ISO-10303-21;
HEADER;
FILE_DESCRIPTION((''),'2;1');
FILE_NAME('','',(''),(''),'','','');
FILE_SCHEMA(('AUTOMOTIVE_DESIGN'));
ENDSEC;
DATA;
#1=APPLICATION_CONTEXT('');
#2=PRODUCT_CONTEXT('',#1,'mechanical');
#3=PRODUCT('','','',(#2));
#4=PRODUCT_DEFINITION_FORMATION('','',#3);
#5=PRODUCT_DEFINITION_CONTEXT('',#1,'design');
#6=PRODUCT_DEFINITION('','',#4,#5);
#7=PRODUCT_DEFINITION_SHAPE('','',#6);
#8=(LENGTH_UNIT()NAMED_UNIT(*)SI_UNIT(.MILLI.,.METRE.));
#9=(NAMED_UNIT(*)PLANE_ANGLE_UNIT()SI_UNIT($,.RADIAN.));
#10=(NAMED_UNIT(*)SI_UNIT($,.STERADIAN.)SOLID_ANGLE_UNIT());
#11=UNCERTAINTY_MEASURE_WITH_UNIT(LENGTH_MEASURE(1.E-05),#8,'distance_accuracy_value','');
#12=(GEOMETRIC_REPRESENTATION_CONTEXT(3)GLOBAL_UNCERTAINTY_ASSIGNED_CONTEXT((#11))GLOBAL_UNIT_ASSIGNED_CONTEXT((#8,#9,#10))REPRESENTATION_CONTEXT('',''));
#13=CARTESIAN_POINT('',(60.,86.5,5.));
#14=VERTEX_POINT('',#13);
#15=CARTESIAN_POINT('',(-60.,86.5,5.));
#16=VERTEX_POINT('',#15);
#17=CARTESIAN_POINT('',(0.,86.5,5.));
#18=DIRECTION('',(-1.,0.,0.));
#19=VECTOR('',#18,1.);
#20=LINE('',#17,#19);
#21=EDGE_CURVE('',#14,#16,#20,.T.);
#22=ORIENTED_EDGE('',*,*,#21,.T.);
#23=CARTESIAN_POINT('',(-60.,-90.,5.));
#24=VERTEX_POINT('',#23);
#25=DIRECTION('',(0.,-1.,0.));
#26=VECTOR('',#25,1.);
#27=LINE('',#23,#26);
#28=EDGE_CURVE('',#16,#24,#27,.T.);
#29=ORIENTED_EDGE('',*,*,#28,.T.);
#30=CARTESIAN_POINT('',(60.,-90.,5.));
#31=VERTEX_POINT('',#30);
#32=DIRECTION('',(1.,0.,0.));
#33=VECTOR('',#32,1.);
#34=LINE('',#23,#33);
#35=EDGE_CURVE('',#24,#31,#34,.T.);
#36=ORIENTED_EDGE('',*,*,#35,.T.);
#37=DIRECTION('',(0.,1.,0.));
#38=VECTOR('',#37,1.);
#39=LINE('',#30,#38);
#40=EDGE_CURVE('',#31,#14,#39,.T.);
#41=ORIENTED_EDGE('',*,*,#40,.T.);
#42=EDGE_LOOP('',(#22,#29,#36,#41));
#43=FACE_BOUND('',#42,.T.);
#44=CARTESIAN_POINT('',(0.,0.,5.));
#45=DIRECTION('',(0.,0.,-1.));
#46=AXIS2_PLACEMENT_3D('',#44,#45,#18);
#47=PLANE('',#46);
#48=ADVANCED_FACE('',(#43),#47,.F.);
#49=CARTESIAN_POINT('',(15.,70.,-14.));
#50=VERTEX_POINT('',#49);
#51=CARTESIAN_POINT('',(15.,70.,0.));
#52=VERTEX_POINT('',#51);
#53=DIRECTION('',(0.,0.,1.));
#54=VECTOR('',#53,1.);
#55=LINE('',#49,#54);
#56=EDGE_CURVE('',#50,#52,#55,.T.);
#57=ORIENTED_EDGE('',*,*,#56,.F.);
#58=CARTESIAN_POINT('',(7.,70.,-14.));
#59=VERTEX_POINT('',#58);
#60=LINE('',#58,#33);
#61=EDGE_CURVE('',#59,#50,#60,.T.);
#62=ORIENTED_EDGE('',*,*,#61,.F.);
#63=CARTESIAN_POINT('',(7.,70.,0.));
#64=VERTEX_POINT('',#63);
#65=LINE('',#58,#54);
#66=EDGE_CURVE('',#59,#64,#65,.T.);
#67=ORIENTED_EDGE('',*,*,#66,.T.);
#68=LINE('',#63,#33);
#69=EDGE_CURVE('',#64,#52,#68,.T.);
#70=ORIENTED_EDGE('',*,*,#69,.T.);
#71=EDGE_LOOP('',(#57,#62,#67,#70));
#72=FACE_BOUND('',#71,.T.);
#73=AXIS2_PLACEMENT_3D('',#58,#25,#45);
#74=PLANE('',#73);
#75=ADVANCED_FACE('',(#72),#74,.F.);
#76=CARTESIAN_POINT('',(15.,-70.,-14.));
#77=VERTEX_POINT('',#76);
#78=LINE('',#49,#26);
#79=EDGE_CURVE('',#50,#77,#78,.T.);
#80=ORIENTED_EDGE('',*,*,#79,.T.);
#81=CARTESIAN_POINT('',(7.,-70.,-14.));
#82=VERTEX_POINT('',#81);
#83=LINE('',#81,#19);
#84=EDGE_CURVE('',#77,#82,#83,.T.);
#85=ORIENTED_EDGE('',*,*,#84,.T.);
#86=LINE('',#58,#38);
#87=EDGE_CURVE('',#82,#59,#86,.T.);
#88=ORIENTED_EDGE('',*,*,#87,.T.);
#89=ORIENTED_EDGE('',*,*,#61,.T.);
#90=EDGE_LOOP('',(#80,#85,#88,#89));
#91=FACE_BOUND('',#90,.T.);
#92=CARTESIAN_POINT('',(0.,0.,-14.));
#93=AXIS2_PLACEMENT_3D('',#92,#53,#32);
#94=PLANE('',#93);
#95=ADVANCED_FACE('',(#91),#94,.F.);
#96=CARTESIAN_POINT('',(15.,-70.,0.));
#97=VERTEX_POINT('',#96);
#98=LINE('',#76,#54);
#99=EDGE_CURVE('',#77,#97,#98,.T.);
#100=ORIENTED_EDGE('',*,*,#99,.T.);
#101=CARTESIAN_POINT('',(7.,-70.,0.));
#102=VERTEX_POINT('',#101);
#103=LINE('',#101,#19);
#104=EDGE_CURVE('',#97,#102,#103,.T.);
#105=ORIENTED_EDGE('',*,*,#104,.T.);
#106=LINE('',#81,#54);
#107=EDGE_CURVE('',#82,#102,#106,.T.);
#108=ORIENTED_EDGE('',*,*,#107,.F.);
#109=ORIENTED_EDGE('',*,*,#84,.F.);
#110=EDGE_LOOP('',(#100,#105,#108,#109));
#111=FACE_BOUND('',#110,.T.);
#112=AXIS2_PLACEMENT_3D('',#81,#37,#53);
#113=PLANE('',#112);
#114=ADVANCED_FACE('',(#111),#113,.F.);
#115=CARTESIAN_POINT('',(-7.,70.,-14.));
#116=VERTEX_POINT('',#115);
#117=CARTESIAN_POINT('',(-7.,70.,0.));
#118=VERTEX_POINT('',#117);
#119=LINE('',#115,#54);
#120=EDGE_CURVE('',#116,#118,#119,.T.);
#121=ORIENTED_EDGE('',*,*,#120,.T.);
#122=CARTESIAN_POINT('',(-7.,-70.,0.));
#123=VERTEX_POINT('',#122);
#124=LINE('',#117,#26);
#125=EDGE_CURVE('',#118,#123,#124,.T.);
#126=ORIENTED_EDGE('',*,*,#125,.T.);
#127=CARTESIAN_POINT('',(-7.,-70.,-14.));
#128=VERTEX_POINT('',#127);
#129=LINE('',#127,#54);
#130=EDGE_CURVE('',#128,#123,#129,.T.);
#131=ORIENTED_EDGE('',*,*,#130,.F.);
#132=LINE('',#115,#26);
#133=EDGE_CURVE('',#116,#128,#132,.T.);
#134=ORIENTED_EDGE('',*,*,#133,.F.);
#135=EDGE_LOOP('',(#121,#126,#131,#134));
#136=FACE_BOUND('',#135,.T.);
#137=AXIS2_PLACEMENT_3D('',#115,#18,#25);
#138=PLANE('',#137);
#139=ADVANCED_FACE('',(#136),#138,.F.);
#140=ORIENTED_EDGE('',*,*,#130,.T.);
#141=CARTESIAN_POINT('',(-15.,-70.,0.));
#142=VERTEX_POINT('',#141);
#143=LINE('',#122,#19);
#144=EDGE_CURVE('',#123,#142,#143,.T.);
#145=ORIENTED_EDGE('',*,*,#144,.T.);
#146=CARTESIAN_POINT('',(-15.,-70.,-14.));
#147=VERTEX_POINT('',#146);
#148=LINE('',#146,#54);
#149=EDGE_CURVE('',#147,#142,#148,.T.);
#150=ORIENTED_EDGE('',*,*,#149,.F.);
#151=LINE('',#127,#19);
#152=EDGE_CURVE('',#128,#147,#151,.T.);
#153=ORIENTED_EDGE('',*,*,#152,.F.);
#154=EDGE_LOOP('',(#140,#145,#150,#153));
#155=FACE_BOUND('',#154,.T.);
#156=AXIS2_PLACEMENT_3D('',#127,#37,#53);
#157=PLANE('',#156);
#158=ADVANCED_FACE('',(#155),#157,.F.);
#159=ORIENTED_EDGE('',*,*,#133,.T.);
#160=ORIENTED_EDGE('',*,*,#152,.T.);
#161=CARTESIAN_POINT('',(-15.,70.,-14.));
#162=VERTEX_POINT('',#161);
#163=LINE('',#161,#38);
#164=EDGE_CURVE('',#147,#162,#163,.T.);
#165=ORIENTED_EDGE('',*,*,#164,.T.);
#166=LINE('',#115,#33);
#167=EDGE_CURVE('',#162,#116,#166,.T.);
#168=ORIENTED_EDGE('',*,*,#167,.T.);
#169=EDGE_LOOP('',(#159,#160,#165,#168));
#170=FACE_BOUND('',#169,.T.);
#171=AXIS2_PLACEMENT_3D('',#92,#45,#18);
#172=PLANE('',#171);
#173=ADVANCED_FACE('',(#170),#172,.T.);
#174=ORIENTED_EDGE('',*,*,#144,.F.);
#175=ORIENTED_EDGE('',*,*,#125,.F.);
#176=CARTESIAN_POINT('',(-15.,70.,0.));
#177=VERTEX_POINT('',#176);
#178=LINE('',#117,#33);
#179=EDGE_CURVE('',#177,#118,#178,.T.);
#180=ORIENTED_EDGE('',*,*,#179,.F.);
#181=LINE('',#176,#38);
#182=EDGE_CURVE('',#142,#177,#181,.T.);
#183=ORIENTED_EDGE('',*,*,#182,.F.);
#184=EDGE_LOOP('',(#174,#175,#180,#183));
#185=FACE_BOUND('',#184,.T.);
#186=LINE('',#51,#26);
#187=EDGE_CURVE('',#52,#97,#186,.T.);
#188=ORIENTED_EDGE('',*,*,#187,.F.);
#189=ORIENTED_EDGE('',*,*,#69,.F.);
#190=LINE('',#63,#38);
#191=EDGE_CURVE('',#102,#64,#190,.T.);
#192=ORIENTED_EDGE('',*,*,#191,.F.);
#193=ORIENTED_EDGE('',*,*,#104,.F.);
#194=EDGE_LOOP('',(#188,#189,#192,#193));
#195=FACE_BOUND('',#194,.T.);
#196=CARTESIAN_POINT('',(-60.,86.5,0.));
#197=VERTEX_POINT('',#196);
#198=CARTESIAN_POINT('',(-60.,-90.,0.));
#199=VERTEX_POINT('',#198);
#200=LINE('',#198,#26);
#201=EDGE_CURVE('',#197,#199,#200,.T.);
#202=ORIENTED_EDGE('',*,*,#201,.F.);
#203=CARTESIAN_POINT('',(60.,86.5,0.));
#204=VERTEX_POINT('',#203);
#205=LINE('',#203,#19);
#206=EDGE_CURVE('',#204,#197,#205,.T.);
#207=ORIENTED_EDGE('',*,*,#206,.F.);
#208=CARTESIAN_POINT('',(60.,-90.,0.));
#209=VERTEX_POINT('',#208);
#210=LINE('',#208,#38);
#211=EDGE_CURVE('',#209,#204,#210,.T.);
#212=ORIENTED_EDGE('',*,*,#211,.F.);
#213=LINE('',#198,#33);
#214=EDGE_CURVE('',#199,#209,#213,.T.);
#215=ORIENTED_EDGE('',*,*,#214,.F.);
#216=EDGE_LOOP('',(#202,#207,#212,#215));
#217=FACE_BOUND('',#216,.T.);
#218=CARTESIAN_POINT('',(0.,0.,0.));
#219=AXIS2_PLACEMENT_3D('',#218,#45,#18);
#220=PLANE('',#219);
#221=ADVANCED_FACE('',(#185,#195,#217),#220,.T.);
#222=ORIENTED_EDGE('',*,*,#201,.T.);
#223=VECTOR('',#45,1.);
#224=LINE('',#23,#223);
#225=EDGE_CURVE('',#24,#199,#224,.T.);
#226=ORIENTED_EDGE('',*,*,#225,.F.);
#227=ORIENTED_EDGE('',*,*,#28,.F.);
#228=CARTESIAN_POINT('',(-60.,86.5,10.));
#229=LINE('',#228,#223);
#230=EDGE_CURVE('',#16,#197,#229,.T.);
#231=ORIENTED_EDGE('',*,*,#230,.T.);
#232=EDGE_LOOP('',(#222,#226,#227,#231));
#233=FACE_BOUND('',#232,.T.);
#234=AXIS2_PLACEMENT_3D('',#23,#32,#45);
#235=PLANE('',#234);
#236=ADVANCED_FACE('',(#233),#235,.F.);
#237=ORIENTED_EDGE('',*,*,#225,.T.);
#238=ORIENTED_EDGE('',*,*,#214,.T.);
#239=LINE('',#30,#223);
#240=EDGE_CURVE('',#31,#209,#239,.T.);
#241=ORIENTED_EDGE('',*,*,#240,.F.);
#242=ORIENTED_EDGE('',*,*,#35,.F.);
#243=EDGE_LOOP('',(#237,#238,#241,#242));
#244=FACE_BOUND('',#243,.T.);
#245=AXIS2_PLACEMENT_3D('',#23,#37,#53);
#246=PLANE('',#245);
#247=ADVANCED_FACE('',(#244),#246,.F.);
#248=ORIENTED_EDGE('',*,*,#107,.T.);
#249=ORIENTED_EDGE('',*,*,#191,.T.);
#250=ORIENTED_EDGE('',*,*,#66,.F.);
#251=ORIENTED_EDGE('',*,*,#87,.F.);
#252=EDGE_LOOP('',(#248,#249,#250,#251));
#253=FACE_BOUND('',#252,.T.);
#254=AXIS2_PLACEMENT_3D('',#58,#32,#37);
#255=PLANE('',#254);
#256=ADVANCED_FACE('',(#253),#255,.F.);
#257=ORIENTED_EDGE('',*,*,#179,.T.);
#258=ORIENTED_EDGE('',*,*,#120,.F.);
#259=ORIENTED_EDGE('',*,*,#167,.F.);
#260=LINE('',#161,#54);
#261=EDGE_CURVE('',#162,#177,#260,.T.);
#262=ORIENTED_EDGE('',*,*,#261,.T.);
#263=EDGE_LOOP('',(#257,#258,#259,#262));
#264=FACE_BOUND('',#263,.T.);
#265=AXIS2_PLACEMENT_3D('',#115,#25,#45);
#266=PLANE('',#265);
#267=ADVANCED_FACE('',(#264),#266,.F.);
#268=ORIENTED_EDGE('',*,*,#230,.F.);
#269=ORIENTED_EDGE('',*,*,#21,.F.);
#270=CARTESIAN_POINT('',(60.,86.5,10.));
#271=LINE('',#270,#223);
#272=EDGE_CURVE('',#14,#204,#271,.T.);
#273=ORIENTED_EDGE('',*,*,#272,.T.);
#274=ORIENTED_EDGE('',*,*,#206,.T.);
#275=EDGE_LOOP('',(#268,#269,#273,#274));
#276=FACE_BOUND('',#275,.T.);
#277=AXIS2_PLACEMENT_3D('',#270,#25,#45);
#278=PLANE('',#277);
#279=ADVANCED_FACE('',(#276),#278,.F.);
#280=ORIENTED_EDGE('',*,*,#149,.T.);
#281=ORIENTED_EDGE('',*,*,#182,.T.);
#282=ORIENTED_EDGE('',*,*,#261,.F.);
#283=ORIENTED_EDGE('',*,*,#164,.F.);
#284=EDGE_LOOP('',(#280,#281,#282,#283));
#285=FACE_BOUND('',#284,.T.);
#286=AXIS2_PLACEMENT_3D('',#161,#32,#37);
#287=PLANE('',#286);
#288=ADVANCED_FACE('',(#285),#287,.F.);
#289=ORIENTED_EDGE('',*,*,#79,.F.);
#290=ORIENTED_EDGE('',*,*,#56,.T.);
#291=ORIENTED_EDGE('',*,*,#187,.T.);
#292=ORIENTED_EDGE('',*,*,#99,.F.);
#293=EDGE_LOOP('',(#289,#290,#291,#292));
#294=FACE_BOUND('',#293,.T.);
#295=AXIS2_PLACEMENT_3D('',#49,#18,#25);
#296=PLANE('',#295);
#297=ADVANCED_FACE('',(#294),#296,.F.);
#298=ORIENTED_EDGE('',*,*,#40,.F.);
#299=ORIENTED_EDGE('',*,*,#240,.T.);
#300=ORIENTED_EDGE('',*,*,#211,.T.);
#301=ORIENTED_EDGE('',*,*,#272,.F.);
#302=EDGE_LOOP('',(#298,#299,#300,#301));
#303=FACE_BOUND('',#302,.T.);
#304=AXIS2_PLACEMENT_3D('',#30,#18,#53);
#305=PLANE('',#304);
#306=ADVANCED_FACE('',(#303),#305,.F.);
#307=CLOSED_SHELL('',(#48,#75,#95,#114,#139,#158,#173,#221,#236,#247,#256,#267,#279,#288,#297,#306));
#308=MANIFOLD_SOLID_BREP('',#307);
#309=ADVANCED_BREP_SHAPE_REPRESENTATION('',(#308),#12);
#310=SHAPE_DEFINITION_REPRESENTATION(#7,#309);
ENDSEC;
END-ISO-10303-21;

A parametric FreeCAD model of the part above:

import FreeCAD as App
import Part
import Sketcher
from FreeCAD import Vector


def add_polygon(sketch, points):
    """Adds a closed chain of lines whose ends are joined by coincident constraints."""
    first, n = sketch.GeometryCount, len(points)
    for a, b in zip(points, points[1:] + points[:1]):
        sketch.addGeometry(Part.LineSegment(App.Vector(*a, 0), App.Vector(*b, 0)), False)
    for i in range(n):
        sketch.addConstraint(Sketcher.Constraint("Coincident", first + i, 2, first + (i + 1) % n, 1))

doc = App.newDocument("Part")
body = doc.addObject("PartDesign::Body", "Body")

sketch1 = doc.addObject("Sketcher::SketchObject", "Sketch")
body.addObject(sketch1)
sketch1.AttachmentSupport = (doc.XY_Plane, [""])
sketch1.MapMode = "FlatFace"
add_polygon(sketch1, [(-60, 90), (-60, -90), (60, -90), (60, 90)])
sketch1.addConstraint(Sketcher.Constraint("Vertical", 0))
sketch1.addConstraint(Sketcher.Constraint("Horizontal", 1))
sketch1.addConstraint(Sketcher.Constraint("Vertical", 2))
sketch1.addConstraint(Sketcher.Constraint("Horizontal", 3))
sketch1.addConstraint(Sketcher.Constraint("Symmetric", 0, 2, 2, 2, -1, 1))
sketch1.addConstraint(Sketcher.Constraint("DistanceX", 1, 1, 1, 2, 120.0))
sketch1.addConstraint(Sketcher.Constraint("DistanceY", 0, 2, 0, 1, 180.0))
pad1 = doc.addObject("PartDesign::Pad", "Pad")
body.addObject(pad1)
pad1.Profile = sketch1
pad1.Length = 5

sketch2 = doc.addObject("Sketcher::SketchObject", "Sketch001")
body.addObject(sketch2)
sketch2.AttachmentSupport = (doc.XY_Plane, [""])
sketch2.MapMode = "FlatFace"
add_polygon(sketch2, [(15, 70), (15, -70), (7, -70), (7, 70)])
add_polygon(sketch2, [(-7, 70), (-7, -70), (-15, -70), (-15, 70)])
sketch2.addConstraint(Sketcher.Constraint("Vertical", 0))
sketch2.addConstraint(Sketcher.Constraint("Horizontal", 1))
sketch2.addConstraint(Sketcher.Constraint("Vertical", 2))
sketch2.addConstraint(Sketcher.Constraint("Horizontal", 3))
sketch2.addConstraint(Sketcher.Constraint("Vertical", 4))
sketch2.addConstraint(Sketcher.Constraint("Horizontal", 5))
sketch2.addConstraint(Sketcher.Constraint("Vertical", 6))
sketch2.addConstraint(Sketcher.Constraint("Horizontal", 7))
sketch2.addConstraint(Sketcher.Constraint("Symmetric", 2, 2, 4, 2, -1, 1))
sketch2.addConstraint(Sketcher.Constraint("Symmetric", 0, 2, 6, 2, -1, 1))
sketch2.addConstraint(Sketcher.Constraint("Horizontal", 1, 2, 4, 2))
sketch2.addConstraint(Sketcher.Constraint("DistanceX", 1, 2, 1, 1, 8.0))
sketch2.addConstraint(Sketcher.Constraint("DistanceY", 0, 2, 0, 1, 140.0))
sketch2.addConstraint(Sketcher.Constraint("DistanceX", -1, 1, 0, 2, 15.0))
pad2 = doc.addObject("PartDesign::Pad", "Pad001")
body.addObject(pad2)
pad2.Profile = sketch2
pad2.Length = 14
pad2.Reversed = True

sketch3 = doc.addObject("Sketcher::SketchObject", "Sketch002")
body.addObject(sketch3)
sketch3.AttachmentSupport = (doc.XY_Plane, [""])
sketch3.MapMode = "FlatFace"
add_polygon(sketch3, [(60, 90), (60, 86.5), (-60, 86.5), (-60, 90)])
sketch3.addConstraint(Sketcher.Constraint("Vertical", 0))
sketch3.addConstraint(Sketcher.Constraint("Horizontal", 1))
sketch3.addConstraint(Sketcher.Constraint("Vertical", 2))
sketch3.addConstraint(Sketcher.Constraint("Horizontal", 3))
sketch3.addConstraint(Sketcher.Constraint("DistanceX", 1, 2, 1, 1, 120.0))
sketch3.addConstraint(Sketcher.Constraint("DistanceY", 0, 2, 0, 1, 3.5))
sketch3.addConstraint(Sketcher.Constraint("DistanceX", -1, 1, 0, 2, 60.0))
sketch3.addConstraint(Sketcher.Constraint("DistanceY", -1, 1, 2, 2, 90.0))
pocket1 = doc.addObject("PartDesign::Pocket", "Pocket")
body.addObject(pocket1)
pocket1.Profile = sketch3
pocket1.Length = 10
pocket1.Reversed = True

doc.recompute()
